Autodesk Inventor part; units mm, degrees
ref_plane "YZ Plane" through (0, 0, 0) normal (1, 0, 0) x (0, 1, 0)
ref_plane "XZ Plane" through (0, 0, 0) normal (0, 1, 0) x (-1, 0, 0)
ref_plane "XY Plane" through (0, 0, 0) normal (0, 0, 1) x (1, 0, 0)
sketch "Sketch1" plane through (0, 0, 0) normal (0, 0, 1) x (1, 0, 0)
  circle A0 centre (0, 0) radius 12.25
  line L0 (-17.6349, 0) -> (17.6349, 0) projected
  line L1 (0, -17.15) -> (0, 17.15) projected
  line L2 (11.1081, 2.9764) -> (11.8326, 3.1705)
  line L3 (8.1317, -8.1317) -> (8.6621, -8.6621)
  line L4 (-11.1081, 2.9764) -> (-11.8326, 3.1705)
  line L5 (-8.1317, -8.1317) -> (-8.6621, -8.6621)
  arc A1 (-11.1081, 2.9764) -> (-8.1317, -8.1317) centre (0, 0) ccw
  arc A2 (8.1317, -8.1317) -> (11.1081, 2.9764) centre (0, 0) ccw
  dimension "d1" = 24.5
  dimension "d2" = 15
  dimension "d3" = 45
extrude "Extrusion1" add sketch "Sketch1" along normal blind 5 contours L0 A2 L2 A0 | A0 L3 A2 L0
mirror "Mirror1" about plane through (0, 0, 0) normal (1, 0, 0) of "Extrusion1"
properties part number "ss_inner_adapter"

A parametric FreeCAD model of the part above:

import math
import FreeCAD as App
import Part
import Sketcher
Q = App.Units.Quantity

doc = App.newDocument("Part")
params = doc.addObject("Spreadsheet::Sheet", "Params")
for row, (alias, value) in enumerate([
    ("sketch1_radius", "12.25 mm"),
    ("sketch1_radius2", "11.5 mm"),
    ("pad1_length", "5 mm"),
], start=1):
    params.set(f"A{row}", alias)
    params.set(f"B{row}", "=" + value)
    params.setAlias(f"B{row}", alias)

body = doc.addObject("PartDesign::Body", "Body")
body.AllowCompound = True

# Sketch on XY plane
sketch1 = body.newObject("Sketcher::SketchObject", "Sketch")
sketch1.AttachmentSupport = (doc.getObject("XY_Plane"), [""])
sketch1.MapMode = "FlatFace"
sketch1.addGeometry([
    Part.ArcOfCircle(Part.Circle(App.Vector(0, 0, 0), App.Vector(0, 0, 1), 11.49995), math.radians(-45), math.radians(14.999969)),
    Part.LineSegment(App.Vector(8.1317, -8.1317, 0), App.Vector(8.6621, -8.6621, 0)),
    Part.ArcOfCircle(Part.Circle(App.Vector(0, 0, 0), App.Vector(0, 0, 1), 12.25), math.radians(-45), math.radians(14.999839)),
    Part.LineSegment(App.Vector(11.8326, 3.1705, 0), App.Vector(11.1081, 2.9764, 0)),
], False)
sketch1.addConstraint([
    Sketcher.Constraint("Coincident", 0, 1, 1, 1),
    Sketcher.Constraint("Coincident", 1, 2, 2, 1),
    Sketcher.Constraint("Coincident", 2, 2, 3, 1),
    Sketcher.Constraint("Coincident", 3, 2, 0, 2),
    Sketcher.Constraint("Coincident", 0, 3, -1, 1),
    Sketcher.Constraint("Coincident", 2, 3, -1, 1),
    Sketcher.Constraint("Angle", 1, Q("-45 deg")),
    Sketcher.Constraint("Radius", 2, Q("12.25 mm")),
    Sketcher.Constraint("Radius", 0, Q("11.5 mm")),
    Sketcher.Constraint("DistanceX", -1, 1, 1, 2, Q("8.662 mm")),
    Sketcher.Constraint("DistanceX", -1, 1, 3, 2, Q("11.108 mm")),
    Sketcher.Constraint("DistanceX", 0, 1, 2, 2, Q("3.701 mm")),
])
sketch1.setExpression("Constraints[7]", "Params.sketch1_radius")
sketch1.setExpression("Constraints[8]", "Params.sketch1_radius2")
pad1 = body.newObject("PartDesign::Pad", "Pad")
pad1.Profile = sketch1
pad1.setExpression("Length", "Params.pad1_length")
doc.recompute()

mirrored = body.newObject("PartDesign::Mirrored", "Mirrored")
mirrored.Originals = [pad1]
mirrored.MirrorPlane = (doc.getObject("YZ_Plane"), [""])
body.Tip = mirrored

doc.recompute()
